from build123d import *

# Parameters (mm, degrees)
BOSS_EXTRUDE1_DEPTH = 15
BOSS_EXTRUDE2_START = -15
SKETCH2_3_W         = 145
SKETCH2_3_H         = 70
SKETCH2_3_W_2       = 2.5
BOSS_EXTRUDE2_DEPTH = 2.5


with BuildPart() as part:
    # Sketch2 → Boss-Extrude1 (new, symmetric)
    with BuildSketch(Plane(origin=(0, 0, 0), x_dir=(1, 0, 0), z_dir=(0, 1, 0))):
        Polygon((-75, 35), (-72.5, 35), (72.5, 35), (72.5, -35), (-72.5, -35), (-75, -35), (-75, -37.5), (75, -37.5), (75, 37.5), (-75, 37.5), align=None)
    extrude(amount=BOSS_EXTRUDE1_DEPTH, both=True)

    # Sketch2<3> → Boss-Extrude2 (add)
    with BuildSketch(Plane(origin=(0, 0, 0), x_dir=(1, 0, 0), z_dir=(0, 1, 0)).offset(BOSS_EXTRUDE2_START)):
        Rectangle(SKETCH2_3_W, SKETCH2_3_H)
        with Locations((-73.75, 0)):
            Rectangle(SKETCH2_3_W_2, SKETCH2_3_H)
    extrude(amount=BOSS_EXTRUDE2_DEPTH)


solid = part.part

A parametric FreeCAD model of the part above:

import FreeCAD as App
import Part
import Sketcher
from FreeCAD import Vector
Q = App.Units.Quantity

doc = App.newDocument("Part")
body = doc.addObject("PartDesign::Body", "Body")

# Sketch on XZ plane
sketch1 = doc.addObject("Sketcher::SketchObject", "Sketch")
body.addObject(sketch1)
sketch1.AttachmentSupport = (doc.XZ_Plane, [""])
sketch1.MapMode = "FlatFace"
sketch1.addGeometry([
    Part.LineSegment(Vector(-75, -35, 0), Vector(72.5, -35, 0)),  # 0
    Part.LineSegment(Vector(72.5, -35, 0), Vector(72.5, 35, 0)),  # 1
    Part.LineSegment(Vector(72.5, 35, 0), Vector(-75, 35, 0)),  # 2
    Part.LineSegment(Vector(-75, 35, 0), Vector(-75, 37.5, 0)),  # 3
    Part.LineSegment(Vector(-75, 37.5, 0), Vector(75, 37.5, 0)),  # 4
    Part.LineSegment(Vector(75, 37.5, 0), Vector(75, -37.5, 0)),  # 5
    Part.LineSegment(Vector(75, -37.5, 0), Vector(-75, -37.5, 0)),  # 6
    Part.LineSegment(Vector(-75, -37.5, 0), Vector(-75, -35, 0)),  # 7
], False)
sketch1.addConstraint([
    Sketcher.Constraint("Coincident", 0, 2, 1, 1),
    Sketcher.Constraint("Coincident", 1, 2, 2, 1),
    Sketcher.Constraint("Coincident", 2, 2, 3, 1),
    Sketcher.Constraint("Coincident", 3, 2, 4, 1),
    Sketcher.Constraint("Coincident", 4, 2, 5, 1),
    Sketcher.Constraint("Coincident", 5, 2, 6, 1),
    Sketcher.Constraint("Coincident", 6, 2, 7, 1),
    Sketcher.Constraint("Coincident", 7, 2, 0, 1),
    Sketcher.Constraint("Horizontal", 0),
    Sketcher.Constraint("Vertical", 1),
    Sketcher.Constraint("Horizontal", 2),
    Sketcher.Constraint("Vertical", 3),
    Sketcher.Constraint("Horizontal", 4),
    Sketcher.Constraint("Vertical", 5),
    Sketcher.Constraint("Horizontal", 6),
    Sketcher.Constraint("Vertical", 7),
    Sketcher.Constraint("Symmetric", 3, 2, 5, 2, -1, 1),
    Sketcher.Constraint("Symmetric", 2, 2, 7, 2, -1),
    Sketcher.Constraint("DistanceX", 4, 1, 4, 2, Q("150 mm")),
    Sketcher.Constraint("DistanceY", 1, 1, 1, 2, Q("70 mm")),
    Sketcher.Constraint("DistanceY", 5, 2, 5, 1, Q("75 mm")),
    Sketcher.Constraint("DistanceX", 0, 1, 0, 2, Q("147.5 mm")),
])
pad1 = doc.addObject("PartDesign::Pad", "Pad")
body.addObject(pad1)
pad1.Profile = sketch1
pad1.Length = 30
pad1.Midplane = True

# Sketch on XZ plane
sketch2 = doc.addObject("Sketcher::SketchObject", "Sketch001")
body.addObject(sketch2)
sketch2.AttachmentSupport = (doc.XZ_Plane, [""])
sketch2.MapMode = "FlatFace"
sketch2.AttachmentOffset = App.Placement(Vector(0, 0, 15), App.Rotation())
sketch2.addGeometry([
    Part.LineSegment(Vector(72, 35, 0), Vector(72, -35, 0)),
    Part.LineSegment(Vector(72, -35, 0), Vector(-75, -35, 0)),
    Part.LineSegment(Vector(-75, -35, 0), Vector(-75, 35, 0)),
    Part.LineSegment(Vector(-75, 35, 0), Vector(72, 35, 0)),
], False)
sketch2.addConstraint([
    Sketcher.Constraint("Coincident", 0, 2, 1, 1),
    Sketcher.Constraint("Coincident", 1, 2, 2, 1),
    Sketcher.Constraint("Coincident", 2, 2, 3, 1),
    Sketcher.Constraint("Coincident", 3, 2, 0, 1),
    Sketcher.Constraint("Vertical", 0),
    Sketcher.Constraint("Horizontal", 1),
    Sketcher.Constraint("Vertical", 2),
    Sketcher.Constraint("Horizontal", 3),
    Sketcher.Constraint("DistanceY", 0, 2, 0, 1, Q("70 mm")),
    Sketcher.Constraint("DistanceX", 1, 2, 1, 1, Q("147.5 mm")),
    Sketcher.Constraint("DistanceY", 0, 2, -1, 1, Q("35 mm")),
    Sketcher.Constraint("DistanceX", 1, 2, -1, 1, Q("75 mm")),
])
pad2 = doc.addObject("PartDesign::Pad", "Pad001")
body.addObject(pad2)
pad2.Profile = sketch2
pad2.Length = 2.5
pad2.Reversed = True

doc.recompute()
